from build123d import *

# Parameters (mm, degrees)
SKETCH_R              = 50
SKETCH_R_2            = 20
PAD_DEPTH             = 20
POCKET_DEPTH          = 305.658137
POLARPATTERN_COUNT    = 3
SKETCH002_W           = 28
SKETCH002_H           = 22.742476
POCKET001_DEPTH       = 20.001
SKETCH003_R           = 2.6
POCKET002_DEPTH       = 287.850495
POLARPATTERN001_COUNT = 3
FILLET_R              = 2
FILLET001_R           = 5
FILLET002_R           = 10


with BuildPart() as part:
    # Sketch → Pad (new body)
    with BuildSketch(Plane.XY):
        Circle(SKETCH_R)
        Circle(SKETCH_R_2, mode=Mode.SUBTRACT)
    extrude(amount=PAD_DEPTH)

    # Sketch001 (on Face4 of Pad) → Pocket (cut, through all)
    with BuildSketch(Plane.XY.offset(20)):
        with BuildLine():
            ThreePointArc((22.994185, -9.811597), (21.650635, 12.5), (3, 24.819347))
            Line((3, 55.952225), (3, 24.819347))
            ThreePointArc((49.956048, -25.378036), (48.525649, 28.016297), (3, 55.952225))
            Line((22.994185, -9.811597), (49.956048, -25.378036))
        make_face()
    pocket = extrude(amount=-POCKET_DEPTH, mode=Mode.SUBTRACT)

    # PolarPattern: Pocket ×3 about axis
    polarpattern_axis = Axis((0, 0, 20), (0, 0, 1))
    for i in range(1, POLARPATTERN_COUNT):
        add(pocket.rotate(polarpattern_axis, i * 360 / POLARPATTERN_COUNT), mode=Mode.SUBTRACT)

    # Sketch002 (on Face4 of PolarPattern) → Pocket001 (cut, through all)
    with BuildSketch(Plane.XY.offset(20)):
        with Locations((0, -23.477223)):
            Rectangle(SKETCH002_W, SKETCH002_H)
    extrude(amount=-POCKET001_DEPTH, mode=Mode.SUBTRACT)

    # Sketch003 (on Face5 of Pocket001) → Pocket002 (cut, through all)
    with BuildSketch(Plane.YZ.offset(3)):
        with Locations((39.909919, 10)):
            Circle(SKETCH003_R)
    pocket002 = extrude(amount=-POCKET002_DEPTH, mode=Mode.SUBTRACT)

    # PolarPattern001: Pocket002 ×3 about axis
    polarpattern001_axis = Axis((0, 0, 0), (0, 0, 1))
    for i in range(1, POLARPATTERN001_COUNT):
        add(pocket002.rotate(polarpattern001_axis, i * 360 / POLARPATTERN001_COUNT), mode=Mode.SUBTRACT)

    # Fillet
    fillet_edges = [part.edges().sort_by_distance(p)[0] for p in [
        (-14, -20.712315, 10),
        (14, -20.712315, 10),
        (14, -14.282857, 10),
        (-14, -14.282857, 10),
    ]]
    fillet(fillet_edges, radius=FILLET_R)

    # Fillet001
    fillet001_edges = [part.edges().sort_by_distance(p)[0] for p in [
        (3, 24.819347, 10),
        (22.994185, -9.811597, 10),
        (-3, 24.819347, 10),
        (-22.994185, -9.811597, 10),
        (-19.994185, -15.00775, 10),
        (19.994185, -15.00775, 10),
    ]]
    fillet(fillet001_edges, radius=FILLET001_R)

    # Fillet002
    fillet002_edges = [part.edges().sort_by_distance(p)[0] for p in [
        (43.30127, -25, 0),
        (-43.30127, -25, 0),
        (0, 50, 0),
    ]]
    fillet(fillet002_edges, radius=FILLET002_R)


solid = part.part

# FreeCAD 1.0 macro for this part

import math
import FreeCAD as App
import Part
import Sketcher
Q = App.Units.Quantity


def edges_at(feature, points):
    """Names of the edges that pass closest to the given points."""
    edges = feature.Shape.Edges
    near = lambda p: min(range(len(edges)), key=lambda i: edges[i].distToShape(Part.Vertex(*p))[0])
    return sorted({f"Edge{near(p) + 1}" for p in points})

doc = App.newDocument("Part")
body = doc.addObject("PartDesign::Body", "Body")

# Sketch on XY plane
sketch1 = doc.addObject("Sketcher::SketchObject", "Sketch")
body.addObject(sketch1)
sketch1.AttachmentSupport = (doc.XY_Plane, [""])
sketch1.MapMode = "FlatFace"
sketch1.addGeometry(Part.Circle(App.Vector(0, 0, 0), App.Vector(0, 0, 1), 50), False)
sketch1.addGeometry(Part.Circle(App.Vector(0, 0, 0), App.Vector(0, 0, 1), 20), False)
sketch1.addConstraint(Sketcher.Constraint("Coincident", 0, 3, -1, 1))
sketch1.addConstraint(Sketcher.Constraint("Coincident", 1, 3, -1, 1))
sketch1.addConstraint(Sketcher.Constraint("Diameter", 0, Q("100 mm")))
sketch1.addConstraint(Sketcher.Constraint("Diameter", 1, Q("40 mm")))
pad1 = doc.addObject("PartDesign::Pad", "Pad")
body.addObject(pad1)
pad1.Profile = sketch1
pad1.Length = 20

# Sketch on XY plane
sketch2 = doc.addObject("Sketcher::SketchObject", "Sketch001")
body.addObject(sketch2)
sketch2.AttachmentSupport = (doc.XY_Plane, [""])
sketch2.MapMode = "FlatFace"
sketch2.AttachmentOffset = App.Placement(App.Vector(0, 0, 20), App.Rotation())
sketch2.addGeometry(Part.ArcOfCircle(Part.Circle(App.Vector(0.000001, 0, 0), App.Vector(0, 0, 1), 24.999999), math.radians(-23.107898), math.radians(83.107898)), False)
sketch2.addGeometry(Part.LineSegment(App.Vector(22.994185, -9.811597, 0), App.Vector(49.956048, -25.378036, 0)), False)
sketch2.addGeometry(Part.ArcOfCircle(Part.Circle(App.Vector(0.000001, 0.000001, 0), App.Vector(0, 0, 1), 56.032592), math.radians(-26.930902), math.radians(86.930902)), False)
sketch2.addGeometry(Part.LineSegment(App.Vector(3, 55.952225, 0), App.Vector(3, 24.819347, 0)), False)
sketch2.addConstraint(Sketcher.Constraint("Coincident", 0, 1, 1, 1))
sketch2.addConstraint(Sketcher.Constraint("Coincident", 1, 2, 2, 1))
sketch2.addConstraint(Sketcher.Constraint("Coincident", 2, 2, 3, 1))
sketch2.addConstraint(Sketcher.Constraint("Coincident", 3, 2, 0, 2))
sketch2.addConstraint(Sketcher.Constraint("Vertical", 3))
sketch2.addConstraint(Sketcher.Constraint("Coincident", 0, 3, -1, 1))
sketch2.addConstraint(Sketcher.Constraint("Coincident", 2, 3, -1, 1))
sketch2.addConstraint(Sketcher.Constraint("Radius", 0, Q("24.999999 mm")))
sketch2.addConstraint(Sketcher.Constraint("Angle", 1, Q("-30 deg")))
sketch2.addConstraint(Sketcher.Constraint("DistanceX", -1, 1, 2, 2, Q("3 mm")))
sketch2.addConstraint(Sketcher.Constraint("Radius", 2, Q("56.032592 mm")))
sketch2.addConstraint(Sketcher.Constraint("DistanceX", -1, 1, 1, 2, Q("49.956048 mm")))
pocket1 = doc.addObject("PartDesign::Pocket", "Pocket")
body.addObject(pocket1)
pocket1.Profile = sketch2
pocket1.Type = "ThroughAll"
doc.recompute()

polarpattern = doc.addObject("PartDesign::PolarPattern", "PolarPattern")
body.addObject(polarpattern)
polarpattern.Originals = [pocket1]
polarpattern.Axis = (doc.Z_Axis, [""])
polarpattern.Angle = 360
polarpattern.Occurrences = 3
body.Tip = polarpattern

# Sketch on XY plane
sketch3 = doc.addObject("Sketcher::SketchObject", "Sketch002")
body.addObject(sketch3)
sketch3.AttachmentSupport = (doc.XY_Plane, [""])
sketch3.MapMode = "FlatFace"
sketch3.AttachmentOffset = App.Placement(App.Vector(0, 0, 20), App.Rotation())
sketch3.addGeometry(Part.LineSegment(App.Vector(-14, -12.105985, 0), App.Vector(-14, -34.848461, 0)), False)
sketch3.addGeometry(Part.LineSegment(App.Vector(-14, -34.848461, 0), App.Vector(14, -34.848461, 0)), False)
sketch3.addGeometry(Part.LineSegment(App.Vector(14, -34.848461, 0), App.Vector(14, -12.105985, 0)), False)
sketch3.addGeometry(Part.LineSegment(App.Vector(14, -12.105985, 0), App.Vector(-14, -12.105985, 0)), False)
sketch3.addConstraint(Sketcher.Constraint("Coincident", 0, 2, 1, 1))
sketch3.addConstraint(Sketcher.Constraint("Coincident", 1, 2, 2, 1))
sketch3.addConstraint(Sketcher.Constraint("Coincident", 2, 2, 3, 1))
sketch3.addConstraint(Sketcher.Constraint("Coincident", 3, 2, 0, 1))
sketch3.addConstraint(Sketcher.Constraint("Vertical", 0))
sketch3.addConstraint(Sketcher.Constraint("Horizontal", 1))
sketch3.addConstraint(Sketcher.Constraint("Vertical", 2))
sketch3.addConstraint(Sketcher.Constraint("Horizontal", 3))
sketch3.addConstraint(Sketcher.Constraint("DistanceX", 1, 1, 1, 2, Q("28 mm")))
sketch3.addConstraint(Sketcher.Constraint("DistanceX", 0, 2, -1, 1, Q("14 mm")))
sketch3.addConstraint(Sketcher.Constraint("DistanceY", 0, 2, 0, 1, Q("22.742476 mm")))
sketch3.addConstraint(Sketcher.Constraint("DistanceY", 0, 2, -1, 1, Q("34.848461 mm")))
pocket2 = doc.addObject("PartDesign::Pocket", "Pocket001")
body.addObject(pocket2)
pocket2.Profile = sketch3
pocket2.Type = "ThroughAll"

# Sketch on YZ plane
sketch4 = doc.addObject("Sketcher::SketchObject", "Sketch003")
body.addObject(sketch4)
sketch4.AttachmentSupport = (doc.YZ_Plane, [""])
sketch4.MapMode = "FlatFace"
sketch4.AttachmentOffset = App.Placement(App.Vector(0, 0, 3), App.Rotation())
sketch4.addGeometry(Part.Circle(App.Vector(39.909919, 10, 0), App.Vector(0, 0, 1), 2.6), False)
sketch4.addConstraint(Sketcher.Constraint("Diameter", 0, Q("5.2 mm")))
sketch4.addConstraint(Sketcher.Constraint("DistanceY", -1, 1, 0, 3, Q("10 mm")))
sketch4.addConstraint(Sketcher.Constraint("DistanceX", -1, 1, 0, 3, Q("39.909919 mm")))
pocket3 = doc.addObject("PartDesign::Pocket", "Pocket002")
body.addObject(pocket3)
pocket3.Profile = sketch4
pocket3.Type = "ThroughAll"
doc.recompute()

polarpattern2 = doc.addObject("PartDesign::PolarPattern", "PolarPattern001")
body.addObject(polarpattern2)
polarpattern2.Originals = [pocket3]
polarpattern2.Axis = (doc.Z_Axis, [""])
polarpattern2.Angle = 360
polarpattern2.Occurrences = 3
body.Tip = polarpattern2
doc.recompute()

fillet = doc.addObject("PartDesign::Fillet", "Fillet")
body.addObject(fillet)
fillet.Base = (polarpattern2, edges_at(polarpattern2, [
    (-14, -20.712, 10),
    (14, -20.712, 10),
    (14, -14.283, 10),
    (-14, -14.283, 10),
]))
fillet.Radius = 2
doc.recompute()

fillet2 = doc.addObject("PartDesign::Fillet", "Fillet001")
body.addObject(fillet2)
fillet2.Base = (fillet, edges_at(fillet, [
    (3, 24.819, 10),
    (22.994, -9.812, 10),
    (-3, 24.819, 10),
    (-22.994, -9.812, 10),
    (-19.994, -15.008, 10),
    (19.994, -15.008, 10),
]))
fillet2.Radius = 5
doc.recompute()

fillet3 = doc.addObject("PartDesign::Fillet", "Fillet002")
body.addObject(fillet3)
fillet3.Base = (fillet2, edges_at(fillet2, [(43.301, -25, 0), (-43.301, -25, 0), (0, 50, 0)]))
fillet3.Radius = 10

doc.recompute()
